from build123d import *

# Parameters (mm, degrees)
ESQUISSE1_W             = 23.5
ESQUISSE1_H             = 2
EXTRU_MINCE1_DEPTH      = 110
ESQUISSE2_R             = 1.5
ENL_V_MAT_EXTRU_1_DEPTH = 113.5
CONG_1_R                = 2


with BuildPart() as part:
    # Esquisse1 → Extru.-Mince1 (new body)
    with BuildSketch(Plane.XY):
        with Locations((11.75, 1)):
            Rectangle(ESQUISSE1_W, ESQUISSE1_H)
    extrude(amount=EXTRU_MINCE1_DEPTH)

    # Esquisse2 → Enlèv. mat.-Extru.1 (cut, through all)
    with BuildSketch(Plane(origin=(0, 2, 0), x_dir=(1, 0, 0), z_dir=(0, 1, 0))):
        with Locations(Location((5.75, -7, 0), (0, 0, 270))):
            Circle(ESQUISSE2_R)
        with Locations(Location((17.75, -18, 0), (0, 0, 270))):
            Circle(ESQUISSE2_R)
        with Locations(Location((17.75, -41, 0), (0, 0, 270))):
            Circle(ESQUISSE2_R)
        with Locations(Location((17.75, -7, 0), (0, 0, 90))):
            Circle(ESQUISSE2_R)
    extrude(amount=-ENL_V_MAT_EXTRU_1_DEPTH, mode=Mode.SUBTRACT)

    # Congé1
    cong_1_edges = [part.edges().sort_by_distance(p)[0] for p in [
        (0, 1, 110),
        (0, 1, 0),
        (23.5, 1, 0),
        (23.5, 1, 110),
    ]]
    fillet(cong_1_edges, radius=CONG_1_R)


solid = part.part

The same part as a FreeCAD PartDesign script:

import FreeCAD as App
import Part
import Sketcher
Q = App.Units.Quantity


def edges_at(feature, points):
    """Names of the edges that pass closest to the given points."""
    edges = feature.Shape.Edges
    near = lambda p: min(range(len(edges)), key=lambda i: edges[i].distToShape(Part.Vertex(*p))[0])
    return sorted({f"Edge{near(p) + 1}" for p in points})


def add_polygon(sketch, points):
    """Adds a closed chain of lines whose ends are joined by coincident constraints."""
    first, n = sketch.GeometryCount, len(points)
    for a, b in zip(points, points[1:] + points[:1]):
        sketch.addGeometry(Part.LineSegment(App.Vector(*a, 0), App.Vector(*b, 0)), False)
    for i in range(n):
        sketch.addConstraint(Sketcher.Constraint("Coincident", first + i, 2, first + (i + 1) % n, 1))

doc = App.newDocument("Part")
params = doc.addObject("Spreadsheet::Sheet", "Params")
for row, (alias, value) in enumerate([
    ("sketch1_height", "2 mm"),
    ("sketch1_width", "23.5 mm"),
    ("pad1_length", "110 mm"),
    ("sketch2_diameter", "3 mm"),
    ("fillet_radius", "2 mm"),
], start=1):
    params.set(f"A{row}", alias)
    params.set(f"B{row}", "=" + value)
    params.setAlias(f"B{row}", alias)

body = doc.addObject("PartDesign::Body", "Body")

# Sketch on XY plane
sketch1 = body.newObject("Sketcher::SketchObject", "Sketch")
sketch1.AttachmentSupport = (doc.getObject("XY_Plane"), [""])
sketch1.MapMode = "FlatFace"
add_polygon(sketch1, [(0, 2), (0, 0), (23.5, 0), (23.5, 2)])  # lines 0-3
sketch1.addConstraint(Sketcher.Constraint("Vertical", 0))
sketch1.addConstraint(Sketcher.Constraint("Horizontal", 1))
sketch1.addConstraint(Sketcher.Constraint("Vertical", 2))
sketch1.addConstraint(Sketcher.Constraint("Horizontal", 3))
sketch1.addConstraint(Sketcher.Constraint("Coincident", 0, 2, -1, 1))
sketch1.addConstraint(Sketcher.Constraint("DistanceY", 0, 2, 0, 1, Q("2 mm")))
sketch1.addConstraint(Sketcher.Constraint("DistanceX", 1, 1, 1, 2, Q("23.5 mm")))
sketch1.setExpression("Constraints[9]", "Params.sketch1_height")
sketch1.setExpression("Constraints[10]", "Params.sketch1_width")
pad1 = body.newObject("PartDesign::Pad", "Pad")
pad1.Profile = sketch1
pad1.setExpression("Length", "Params.pad1_length")

# Sketch on XZ plane
sketch2 = body.newObject("Sketcher::SketchObject", "Sketch001")
sketch2.AttachmentSupport = (doc.getObject("XZ_Plane"), [""])
sketch2.MapMode = "FlatFace"
sketch2.AttachmentOffset = App.Placement(App.Vector(0, 0, -2), App.Rotation())
sketch2.addGeometry(Part.Circle(App.Vector(5.8, 7, 0), App.Vector(0, 0, 1), 1.5), False)
sketch2.addGeometry(Part.Circle(App.Vector(17.8, 18, 0), App.Vector(0, 0, 1), 1.5), False)
sketch2.addGeometry(Part.Circle(App.Vector(17.8, 41, 0), App.Vector(0, 0, 1), 1.5), False)
sketch2.addGeometry(Part.Circle(App.Vector(17.8, 7, 0), App.Vector(0, 0, 1), 1.5), False)
sketch2.addConstraint(Sketcher.Constraint("Equal", 0, 1))
sketch2.addConstraint(Sketcher.Constraint("Equal", 1, 2))
sketch2.addConstraint(Sketcher.Constraint("Equal", 2, 3))
sketch2.addConstraint(Sketcher.Constraint("Horizontal", 0, 3, 3, 3))
sketch2.addConstraint(Sketcher.Constraint("Vertical", 1, 3, 2, 3))
sketch2.addConstraint(Sketcher.Constraint("Vertical", 2, 3, 3, 3))
sketch2.addConstraint(Sketcher.Constraint("Diameter", 0, Q("3 mm")))
sketch2.addConstraint(Sketcher.Constraint("DistanceY", -1, 1, 0, 3, Q("7 mm")))
sketch2.addConstraint(Sketcher.Constraint("DistanceY", -1, 1, 1, 3, Q("18 mm")))
sketch2.addConstraint(Sketcher.Constraint("DistanceY", -1, 1, 2, 3, Q("41 mm")))
sketch2.addConstraint(Sketcher.Constraint("DistanceX", 0, 3, 1, 3, Q("12 mm")))
sketch2.addConstraint(Sketcher.Constraint("DistanceX", -1, 1, 0, 3, Q("5.75 mm")))
sketch2.setExpression("Constraints[6]", "Params.sketch2_diameter")
pocket1 = body.newObject("PartDesign::Pocket", "Pocket")
pocket1.Profile = sketch2
pocket1.Type = "ThroughAll"
pocket1.Reversed = True
doc.recompute()

fillet = body.newObject("PartDesign::Fillet", "Fillet")
fillet.Base = (pocket1, edges_at(pocket1, [
    (0, 1, 110),
    (0, 1, 0),
    (23.5, 1, 0),
    (23.5, 1, 110),
]))
fillet.setExpression("Radius", "Params.fillet_radius")

doc.recompute()
